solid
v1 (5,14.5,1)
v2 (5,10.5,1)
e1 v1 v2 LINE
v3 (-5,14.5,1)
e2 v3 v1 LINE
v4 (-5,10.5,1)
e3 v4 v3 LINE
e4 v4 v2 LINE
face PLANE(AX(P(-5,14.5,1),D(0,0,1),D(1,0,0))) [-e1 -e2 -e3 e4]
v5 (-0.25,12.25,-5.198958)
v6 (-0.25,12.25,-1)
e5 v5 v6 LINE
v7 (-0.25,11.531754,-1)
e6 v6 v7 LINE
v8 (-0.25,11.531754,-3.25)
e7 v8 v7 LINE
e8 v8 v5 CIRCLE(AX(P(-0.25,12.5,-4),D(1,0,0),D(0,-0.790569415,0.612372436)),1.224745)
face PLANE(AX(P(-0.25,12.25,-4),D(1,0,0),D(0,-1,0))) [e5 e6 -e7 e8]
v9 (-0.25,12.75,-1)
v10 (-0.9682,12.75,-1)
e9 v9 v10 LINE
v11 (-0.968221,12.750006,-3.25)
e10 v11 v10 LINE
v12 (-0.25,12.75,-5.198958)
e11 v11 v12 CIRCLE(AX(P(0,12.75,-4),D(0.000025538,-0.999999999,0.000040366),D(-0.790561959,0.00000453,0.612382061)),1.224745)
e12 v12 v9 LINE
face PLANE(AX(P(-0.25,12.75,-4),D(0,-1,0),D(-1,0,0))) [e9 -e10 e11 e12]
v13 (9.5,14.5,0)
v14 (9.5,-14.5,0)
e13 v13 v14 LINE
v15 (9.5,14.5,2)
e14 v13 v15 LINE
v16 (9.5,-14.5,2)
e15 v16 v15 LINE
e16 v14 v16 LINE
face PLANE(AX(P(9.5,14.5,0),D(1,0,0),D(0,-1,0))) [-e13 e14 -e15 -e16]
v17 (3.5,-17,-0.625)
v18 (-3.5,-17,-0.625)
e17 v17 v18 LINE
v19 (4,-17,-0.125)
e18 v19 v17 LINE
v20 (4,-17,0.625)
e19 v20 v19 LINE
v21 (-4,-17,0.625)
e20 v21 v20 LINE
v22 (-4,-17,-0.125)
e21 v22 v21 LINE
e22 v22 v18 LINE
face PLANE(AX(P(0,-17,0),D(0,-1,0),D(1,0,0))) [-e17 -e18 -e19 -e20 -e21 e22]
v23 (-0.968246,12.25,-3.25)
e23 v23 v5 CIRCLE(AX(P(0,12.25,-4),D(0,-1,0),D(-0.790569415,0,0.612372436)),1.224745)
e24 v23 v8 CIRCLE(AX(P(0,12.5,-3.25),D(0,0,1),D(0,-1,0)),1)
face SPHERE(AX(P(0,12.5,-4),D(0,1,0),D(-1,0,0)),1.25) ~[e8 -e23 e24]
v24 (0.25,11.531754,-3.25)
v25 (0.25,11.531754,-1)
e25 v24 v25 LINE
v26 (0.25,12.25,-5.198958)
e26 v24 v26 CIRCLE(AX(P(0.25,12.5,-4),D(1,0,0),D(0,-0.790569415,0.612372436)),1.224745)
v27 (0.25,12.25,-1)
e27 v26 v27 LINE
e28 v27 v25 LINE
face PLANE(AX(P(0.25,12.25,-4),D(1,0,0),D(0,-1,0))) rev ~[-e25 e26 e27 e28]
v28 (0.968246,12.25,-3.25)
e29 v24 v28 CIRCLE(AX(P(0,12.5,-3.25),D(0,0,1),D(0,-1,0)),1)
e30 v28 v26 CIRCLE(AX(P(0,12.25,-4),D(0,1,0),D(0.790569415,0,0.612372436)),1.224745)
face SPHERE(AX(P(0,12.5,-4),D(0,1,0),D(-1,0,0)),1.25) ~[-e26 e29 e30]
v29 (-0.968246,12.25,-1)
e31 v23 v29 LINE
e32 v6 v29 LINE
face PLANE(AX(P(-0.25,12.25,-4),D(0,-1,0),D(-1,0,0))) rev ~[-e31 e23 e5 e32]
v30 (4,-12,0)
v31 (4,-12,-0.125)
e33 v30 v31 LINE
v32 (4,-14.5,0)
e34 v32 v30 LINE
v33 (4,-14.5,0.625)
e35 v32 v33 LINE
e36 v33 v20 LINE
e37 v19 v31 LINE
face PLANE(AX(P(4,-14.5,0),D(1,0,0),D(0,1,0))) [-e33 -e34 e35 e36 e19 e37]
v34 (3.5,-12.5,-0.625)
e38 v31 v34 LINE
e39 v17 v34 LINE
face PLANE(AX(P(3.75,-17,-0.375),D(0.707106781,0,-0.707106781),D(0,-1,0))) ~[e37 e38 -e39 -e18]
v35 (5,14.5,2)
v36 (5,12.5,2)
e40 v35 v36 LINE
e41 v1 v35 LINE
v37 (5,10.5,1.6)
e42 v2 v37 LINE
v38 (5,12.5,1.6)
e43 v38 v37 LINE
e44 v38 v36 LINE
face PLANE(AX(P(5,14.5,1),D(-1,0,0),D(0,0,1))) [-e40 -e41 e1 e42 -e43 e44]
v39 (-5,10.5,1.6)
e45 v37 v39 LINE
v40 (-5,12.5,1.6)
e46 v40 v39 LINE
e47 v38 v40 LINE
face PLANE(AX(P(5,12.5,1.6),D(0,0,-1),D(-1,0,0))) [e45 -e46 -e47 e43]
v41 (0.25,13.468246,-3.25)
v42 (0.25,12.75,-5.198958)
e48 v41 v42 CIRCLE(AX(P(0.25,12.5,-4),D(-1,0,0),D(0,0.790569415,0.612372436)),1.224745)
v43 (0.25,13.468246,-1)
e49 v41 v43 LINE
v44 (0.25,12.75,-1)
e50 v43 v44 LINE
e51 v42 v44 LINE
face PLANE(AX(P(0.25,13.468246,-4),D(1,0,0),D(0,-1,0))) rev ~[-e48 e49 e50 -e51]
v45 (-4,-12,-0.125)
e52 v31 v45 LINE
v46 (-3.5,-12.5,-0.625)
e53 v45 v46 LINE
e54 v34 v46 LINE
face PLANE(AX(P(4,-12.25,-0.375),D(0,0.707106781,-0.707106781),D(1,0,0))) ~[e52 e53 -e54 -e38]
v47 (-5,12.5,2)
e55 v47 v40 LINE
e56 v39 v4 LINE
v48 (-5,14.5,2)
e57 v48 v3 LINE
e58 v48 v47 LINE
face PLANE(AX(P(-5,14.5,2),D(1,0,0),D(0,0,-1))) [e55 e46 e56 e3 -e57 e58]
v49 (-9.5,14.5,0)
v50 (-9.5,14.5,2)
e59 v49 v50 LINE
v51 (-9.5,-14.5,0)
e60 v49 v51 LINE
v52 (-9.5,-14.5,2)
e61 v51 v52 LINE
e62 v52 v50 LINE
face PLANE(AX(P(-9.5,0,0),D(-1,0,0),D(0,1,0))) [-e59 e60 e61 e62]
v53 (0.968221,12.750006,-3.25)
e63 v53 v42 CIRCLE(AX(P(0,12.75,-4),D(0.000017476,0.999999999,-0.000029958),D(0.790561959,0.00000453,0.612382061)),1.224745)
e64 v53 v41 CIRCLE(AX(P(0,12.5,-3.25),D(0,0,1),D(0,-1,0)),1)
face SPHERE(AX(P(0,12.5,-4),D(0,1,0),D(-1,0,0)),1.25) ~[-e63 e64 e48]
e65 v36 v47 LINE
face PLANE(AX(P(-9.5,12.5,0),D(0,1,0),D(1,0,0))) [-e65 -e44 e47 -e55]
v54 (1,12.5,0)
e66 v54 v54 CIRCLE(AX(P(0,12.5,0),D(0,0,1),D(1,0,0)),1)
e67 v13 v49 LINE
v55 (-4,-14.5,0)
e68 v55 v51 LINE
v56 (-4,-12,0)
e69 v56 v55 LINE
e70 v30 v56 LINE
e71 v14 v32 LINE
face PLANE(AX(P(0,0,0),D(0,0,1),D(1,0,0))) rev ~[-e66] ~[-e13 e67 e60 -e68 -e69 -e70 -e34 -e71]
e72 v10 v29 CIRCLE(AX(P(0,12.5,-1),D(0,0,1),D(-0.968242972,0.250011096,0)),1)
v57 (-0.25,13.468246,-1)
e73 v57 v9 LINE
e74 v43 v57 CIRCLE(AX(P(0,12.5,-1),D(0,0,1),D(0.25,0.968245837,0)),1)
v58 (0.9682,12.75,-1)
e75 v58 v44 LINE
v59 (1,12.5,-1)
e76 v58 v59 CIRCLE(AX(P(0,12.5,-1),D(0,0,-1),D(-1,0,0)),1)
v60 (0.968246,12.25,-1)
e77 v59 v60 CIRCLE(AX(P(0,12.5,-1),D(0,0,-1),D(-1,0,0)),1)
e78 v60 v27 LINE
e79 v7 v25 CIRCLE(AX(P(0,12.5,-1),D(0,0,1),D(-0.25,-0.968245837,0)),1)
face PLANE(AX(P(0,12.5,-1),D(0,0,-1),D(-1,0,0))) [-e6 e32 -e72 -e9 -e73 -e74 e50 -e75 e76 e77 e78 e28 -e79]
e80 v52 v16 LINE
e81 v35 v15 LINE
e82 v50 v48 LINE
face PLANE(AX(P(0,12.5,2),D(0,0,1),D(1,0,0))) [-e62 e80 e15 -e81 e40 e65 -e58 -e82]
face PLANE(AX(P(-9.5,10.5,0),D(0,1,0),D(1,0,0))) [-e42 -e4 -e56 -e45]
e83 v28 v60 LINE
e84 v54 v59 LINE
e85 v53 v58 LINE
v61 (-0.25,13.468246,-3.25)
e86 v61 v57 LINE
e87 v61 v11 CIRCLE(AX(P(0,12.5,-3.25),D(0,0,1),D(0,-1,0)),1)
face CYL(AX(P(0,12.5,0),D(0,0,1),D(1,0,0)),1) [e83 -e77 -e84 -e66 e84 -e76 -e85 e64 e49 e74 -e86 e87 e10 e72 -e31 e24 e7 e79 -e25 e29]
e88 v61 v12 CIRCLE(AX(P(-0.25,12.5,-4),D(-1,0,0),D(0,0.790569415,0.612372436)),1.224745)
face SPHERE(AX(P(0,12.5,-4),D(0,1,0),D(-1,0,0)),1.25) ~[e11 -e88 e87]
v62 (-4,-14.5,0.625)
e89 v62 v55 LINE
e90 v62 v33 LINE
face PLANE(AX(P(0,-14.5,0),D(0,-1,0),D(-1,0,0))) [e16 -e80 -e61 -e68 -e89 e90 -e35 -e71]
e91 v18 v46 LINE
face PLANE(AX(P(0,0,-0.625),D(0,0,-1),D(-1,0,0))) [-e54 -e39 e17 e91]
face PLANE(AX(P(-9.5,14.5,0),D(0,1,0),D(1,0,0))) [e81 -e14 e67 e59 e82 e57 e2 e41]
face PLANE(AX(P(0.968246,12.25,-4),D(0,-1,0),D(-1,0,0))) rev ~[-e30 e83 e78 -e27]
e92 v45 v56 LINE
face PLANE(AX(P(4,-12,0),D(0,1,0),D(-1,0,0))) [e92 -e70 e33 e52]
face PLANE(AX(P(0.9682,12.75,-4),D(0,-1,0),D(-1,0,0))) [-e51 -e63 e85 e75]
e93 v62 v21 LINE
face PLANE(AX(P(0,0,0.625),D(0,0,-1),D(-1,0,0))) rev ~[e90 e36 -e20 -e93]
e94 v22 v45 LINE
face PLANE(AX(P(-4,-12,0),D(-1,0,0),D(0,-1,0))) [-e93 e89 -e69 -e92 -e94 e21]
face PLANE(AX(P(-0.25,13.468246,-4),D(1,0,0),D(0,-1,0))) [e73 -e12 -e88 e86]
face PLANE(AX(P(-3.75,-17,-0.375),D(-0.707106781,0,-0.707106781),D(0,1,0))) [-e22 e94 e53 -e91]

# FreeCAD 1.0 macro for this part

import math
import FreeCAD as App
import Part
import Sketcher
from FreeCAD import Vector
Q = App.Units.Quantity


def edges_at(feature, points):
    """Names of the edges that pass closest to the given points."""
    edges = feature.Shape.Edges
    near = lambda p: min(range(len(edges)), key=lambda i: edges[i].distToShape(Part.Vertex(*p))[0])
    return sorted({f"Edge{near(p) + 1}" for p in points})


def add_polygon(sketch, points):
    """Adds a closed chain of lines whose ends are joined by coincident constraints."""
    first, n = sketch.GeometryCount, len(points)
    for a, b in zip(points, points[1:] + points[:1]):
        sketch.addGeometry(Part.LineSegment(App.Vector(*a, 0), App.Vector(*b, 0)), False)
    for i in range(n):
        sketch.addConstraint(Sketcher.Constraint("Coincident", first + i, 2, first + (i + 1) % n, 1))

doc = App.newDocument("Part")
body = doc.addObject("PartDesign::Body", "Body")
body.AllowCompound = True

sketch1 = body.newObject("Sketcher::SketchObject", "Sketch")
sketch1.AttachmentSupport = (doc.getObject("XY_Plane"), [""])
sketch1.MapMode = "FlatFace"
add_polygon(sketch1, [(-9.5, 14.5), (-9.5, -14.5), (9.5, -14.5), (9.5, 14.5)])
sketch1.addGeometry(Part.Circle(Vector(0, 12.5, 0), Vector(0, 0, 1), 1), False)
sketch1.addConstraint([
    Sketcher.Constraint("Vertical", 0),
    Sketcher.Constraint("Horizontal", 1),
    Sketcher.Constraint("Vertical", 2),
    Sketcher.Constraint("Horizontal", 3),
    Sketcher.Constraint("Symmetric", 0, 2, 2, 2, -1, 1),
    Sketcher.Constraint("PointOnObject", 4, 3, -2),
    Sketcher.Constraint("Diameter", 4, Q("2 mm")),
    Sketcher.Constraint("DistanceX", 1, 1, 1, 2, Q("19 mm")),
    Sketcher.Constraint("DistanceY", 0, 2, 0, 1, Q("29 mm")),
    Sketcher.Constraint("DistanceY", 4, 3, 2, 2, Q("2 mm")),
])
pad1 = body.newObject("PartDesign::Pad", "Pad")
pad1.Profile = sketch1
pad1.Length = 2

sketch2 = body.newObject("Sketcher::SketchObject", "Sketch001")
sketch2.AttachmentSupport = (doc.getObject("XY_Plane"), [""])
sketch2.MapMode = "FlatFace"
add_polygon(sketch2, [(4, -12), (4, -17), (-4, -17), (-4, -12)])
sketch2.addConstraint([
    Sketcher.Constraint("Vertical", 0),
    Sketcher.Constraint("Horizontal", 1),
    Sketcher.Constraint("Vertical", 2),
    Sketcher.Constraint("Horizontal", 3),
    Sketcher.Constraint("DistanceX", 1, 2, 1, 1, Q("8 mm")),
    Sketcher.Constraint("DistanceY", 0, 2, 0, 1, Q("5 mm")),
    Sketcher.Constraint("DistanceX", -1, 1, 0, 2, Q("4 mm")),
    Sketcher.Constraint("DistanceY", 0, 2, -1, 1, Q("17 mm")),
])
pad2 = body.newObject("PartDesign::Pad", "Pad001")
pad2.Profile = sketch2
pad2.Length = 1.25
pad2.Midplane = True
doc.recompute()

chamfer = body.newObject("PartDesign::Chamfer", "Chamfer")
chamfer.Base = (pad2, edges_at(pad2, [(0, -12, -0.625), (4, -14.5, -0.625), (-4, -14.5, -0.625)]))
chamfer.Size = 0.5

sketch3 = body.newObject("Sketcher::SketchObject", "Sketch002")
sketch3.AttachmentSupport = (doc.getObject("XY_Plane"), [""])
sketch3.MapMode = "FlatFace"
sketch3.addGeometry(Part.Circle(Vector(0, 12.5, 0), Vector(0, 0, 1), 1), False)
sketch3.addConstraint([
    Sketcher.Constraint("PointOnObject", 0, 3, -2),
    Sketcher.Constraint("Diameter", 0, Q("2 mm")),
    Sketcher.Constraint("DistanceY", -1, 1, 0, 3, Q("12.5 mm")),
])
pad3 = body.newObject("PartDesign::Pad", "Pad002")
pad3.Profile = sketch3
pad3.Length = 4
pad3.Reversed = True

sketch4 = body.newObject("Sketcher::SketchObject", "Sketch003")
sketch4.AttachmentSupport = (doc.getObject("XY_Plane"), [""])
sketch4.MapMode = "FlatFace"
sketch4.AttachmentOffset = App.Placement(Vector(0, 0, -4), App.Rotation())
sketch4.addGeometry([
    Part.ArcOfCircle(Part.Circle(Vector(0, 12.5, 0), Vector(0, 0, 1), 1.2), math.radians(90), math.radians(270)),
    Part.LineSegment(Vector(0, 13.8, 0), Vector(0, 11.2, 0)),
], False)
sketch4.addConstraint([
    Sketcher.Constraint("Coincident", 0, 1, 1, 1),
    Sketcher.Constraint("Coincident", 1, 2, 0, 2),
    Sketcher.Constraint("Vertical", 1),
    Sketcher.Constraint("PointOnObject", 0, 3, -2),
    Sketcher.Constraint("PointOnObject", 0, 1, -2),
    Sketcher.Constraint("Radius", 0, Q("1.25 mm")),
    Sketcher.Constraint("DistanceY", -1, 1, 0, 1, Q("13.75 mm")),
])
revolution = body.newObject("PartDesign::Revolution", "Revolution")
revolution.Profile = sketch4
revolution.ReferenceAxis = (sketch4, ["V_Axis"])
revolution.Angle = 360

sketch5 = body.newObject("Sketcher::SketchObject", "Sketch004")
sketch5.AttachmentSupport = (doc.getObject("XY_Plane"), [""])
sketch5.MapMode = "FlatFace"
sketch5.AttachmentOffset = App.Placement(Vector(0, 0, -4), App.Rotation())
add_polygon(sketch5, [(-0.2, 12.2), (-1.3, 12.2), (-1.3, 12.8), (-0.2, 12.8), (-0.2, 13.8), (0.2, 13.8), (0.2, 12.8), (1.5, 12.8), (1.5, 12.2), (0.2, 12.2), (0.2, 11.2), (-0.2, 11.2)])
sketch5.addConstraint([
    Sketcher.Constraint("Horizontal", 0),
    Sketcher.Constraint("Vertical", 1),
    Sketcher.Constraint("Horizontal", 2),
    Sketcher.Constraint("Vertical", 3),
    Sketcher.Constraint("Horizontal", 4),
    Sketcher.Constraint("Vertical", 5),
    Sketcher.Constraint("Horizontal", 6),
    Sketcher.Constraint("Vertical", 7),
    Sketcher.Constraint("Horizontal", 8),
    Sketcher.Constraint("Vertical", 9),
    Sketcher.Constraint("Horizontal", 10),
    Sketcher.Constraint("Vertical", 11),
    Sketcher.Constraint("Symmetric", 2, 2, 5, 2, -2),
    Sketcher.Constraint("Symmetric", 8, 2, 11, 2, -2),
    Sketcher.Constraint("Vertical", 5, 2, 8, 2),
    Sketcher.Constraint("Equal", 10, 1),
    Sketcher.Constraint("DistanceX", 4, 1, 4, 2, Q("0.5 mm")),
    Sketcher.Constraint("DistanceX", 0, 2, 0, 1, Q("1.0427 mm")),
    Sketcher.Constraint("DistanceY", 3, 1, 3, 2, Q("1.0954 mm")),
    Sketcher.Constraint("DistanceX", 1, 2, 6, 2, Q("2.7605 mm")),
    Sketcher.Constraint("DistanceY", 9, 2, 5, 2, Q("1.5196 mm")),
    Sketcher.Constraint("DistanceY", -1, 1, 0, 2, Q("12.25 mm")),
])
pocket1 = body.newObject("PartDesign::Pocket", "Pocket")
pocket1.Profile = sketch5
pocket1.Type = "TwoLengths"
pocket1.Length = 4
pocket1.Length2 = 3

sketch6 = body.newObject("Sketcher::SketchObject", "Sketch005")
sketch6.AttachmentSupport = (doc.getObject("XY_Plane"), [""])
sketch6.MapMode = "FlatFace"
sketch6.addGeometry(Part.Circle(Vector(0, 12.5, 0), Vector(0, 0, 1), 1), False)
sketch6.addConstraint([
    Sketcher.Constraint("PointOnObject", 0, 3, -2),
    Sketcher.Constraint("Diameter", 0, Q("2 mm")),
    Sketcher.Constraint("DistanceY", -1, 1, 0, 3, Q("12.5 mm")),
])
pad4 = body.newObject("PartDesign::Pad", "Pad003")
pad4.Profile = sketch6
pad4.Length = 2

sketch7 = body.newObject("Sketcher::SketchObject", "Sketch006")
sketch7.AttachmentSupport = (doc.getObject("XZ_Plane"), [""])
sketch7.MapMode = "FlatFace"
sketch7.AttachmentOffset = App.Placement(Vector(0, 0, -14.5), App.Rotation())
add_polygon(sketch7, [(-5, 2), (5, 2), (5, 1), (-5, 1)])
sketch7.addConstraint([
    Sketcher.Constraint("Horizontal", 0),
    Sketcher.Constraint("Vertical", 1),
    Sketcher.Constraint("Horizontal", 2),
    Sketcher.Constraint("Vertical", 3),
    Sketcher.Constraint("DistanceX", 0, 1, 0, 2, Q("10 mm")),
    Sketcher.Constraint("DistanceY", 1, 2, 1, 1, Q("1 mm")),
    Sketcher.Constraint("DistanceY", -1, 1, 1, 2, Q("1 mm")),
    Sketcher.Constraint("DistanceX", -1, 1, 0, 2, Q("5 mm")),
])
pocket2 = body.newObject("PartDesign::Pocket", "Pocket001")
pocket2.Profile = sketch7
pocket2.Length = 2
pocket2.Reversed = True

sketch8 = body.newObject("Sketcher::SketchObject", "Sketch007")
sketch8.AttachmentSupport = (doc.getObject("XZ_Plane"), [""])
sketch8.MapMode = "FlatFace"
sketch8.AttachmentOffset = App.Placement(Vector(0, 0, -12.5), App.Rotation())
add_polygon(sketch8, [(-5, 1), (-5, 1.6), (5, 1.6), (5, 1)])
sketch8.addConstraint([
    Sketcher.Constraint("Vertical", 0),
    Sketcher.Constraint("Horizontal", 1),
    Sketcher.Constraint("Vertical", 2),
    Sketcher.Constraint("Horizontal", 3),
    Sketcher.Constraint("DistanceY", 0, 1, 0, 2, Q("0.6 mm")),
    Sketcher.Constraint("DistanceX", 1, 1, 1, 2, Q("10 mm")),
    Sketcher.Constraint("DistanceX", 0, 2, -1, 1, Q("5 mm")),
    Sketcher.Constraint("DistanceY", -1, 1, 2, 2, Q("1 mm")),
])
pocket3 = body.newObject("PartDesign::Pocket", "Pocket002")
pocket3.Profile = sketch8
pocket3.Length = 2
pocket3.Reversed = True

doc.recompute()
